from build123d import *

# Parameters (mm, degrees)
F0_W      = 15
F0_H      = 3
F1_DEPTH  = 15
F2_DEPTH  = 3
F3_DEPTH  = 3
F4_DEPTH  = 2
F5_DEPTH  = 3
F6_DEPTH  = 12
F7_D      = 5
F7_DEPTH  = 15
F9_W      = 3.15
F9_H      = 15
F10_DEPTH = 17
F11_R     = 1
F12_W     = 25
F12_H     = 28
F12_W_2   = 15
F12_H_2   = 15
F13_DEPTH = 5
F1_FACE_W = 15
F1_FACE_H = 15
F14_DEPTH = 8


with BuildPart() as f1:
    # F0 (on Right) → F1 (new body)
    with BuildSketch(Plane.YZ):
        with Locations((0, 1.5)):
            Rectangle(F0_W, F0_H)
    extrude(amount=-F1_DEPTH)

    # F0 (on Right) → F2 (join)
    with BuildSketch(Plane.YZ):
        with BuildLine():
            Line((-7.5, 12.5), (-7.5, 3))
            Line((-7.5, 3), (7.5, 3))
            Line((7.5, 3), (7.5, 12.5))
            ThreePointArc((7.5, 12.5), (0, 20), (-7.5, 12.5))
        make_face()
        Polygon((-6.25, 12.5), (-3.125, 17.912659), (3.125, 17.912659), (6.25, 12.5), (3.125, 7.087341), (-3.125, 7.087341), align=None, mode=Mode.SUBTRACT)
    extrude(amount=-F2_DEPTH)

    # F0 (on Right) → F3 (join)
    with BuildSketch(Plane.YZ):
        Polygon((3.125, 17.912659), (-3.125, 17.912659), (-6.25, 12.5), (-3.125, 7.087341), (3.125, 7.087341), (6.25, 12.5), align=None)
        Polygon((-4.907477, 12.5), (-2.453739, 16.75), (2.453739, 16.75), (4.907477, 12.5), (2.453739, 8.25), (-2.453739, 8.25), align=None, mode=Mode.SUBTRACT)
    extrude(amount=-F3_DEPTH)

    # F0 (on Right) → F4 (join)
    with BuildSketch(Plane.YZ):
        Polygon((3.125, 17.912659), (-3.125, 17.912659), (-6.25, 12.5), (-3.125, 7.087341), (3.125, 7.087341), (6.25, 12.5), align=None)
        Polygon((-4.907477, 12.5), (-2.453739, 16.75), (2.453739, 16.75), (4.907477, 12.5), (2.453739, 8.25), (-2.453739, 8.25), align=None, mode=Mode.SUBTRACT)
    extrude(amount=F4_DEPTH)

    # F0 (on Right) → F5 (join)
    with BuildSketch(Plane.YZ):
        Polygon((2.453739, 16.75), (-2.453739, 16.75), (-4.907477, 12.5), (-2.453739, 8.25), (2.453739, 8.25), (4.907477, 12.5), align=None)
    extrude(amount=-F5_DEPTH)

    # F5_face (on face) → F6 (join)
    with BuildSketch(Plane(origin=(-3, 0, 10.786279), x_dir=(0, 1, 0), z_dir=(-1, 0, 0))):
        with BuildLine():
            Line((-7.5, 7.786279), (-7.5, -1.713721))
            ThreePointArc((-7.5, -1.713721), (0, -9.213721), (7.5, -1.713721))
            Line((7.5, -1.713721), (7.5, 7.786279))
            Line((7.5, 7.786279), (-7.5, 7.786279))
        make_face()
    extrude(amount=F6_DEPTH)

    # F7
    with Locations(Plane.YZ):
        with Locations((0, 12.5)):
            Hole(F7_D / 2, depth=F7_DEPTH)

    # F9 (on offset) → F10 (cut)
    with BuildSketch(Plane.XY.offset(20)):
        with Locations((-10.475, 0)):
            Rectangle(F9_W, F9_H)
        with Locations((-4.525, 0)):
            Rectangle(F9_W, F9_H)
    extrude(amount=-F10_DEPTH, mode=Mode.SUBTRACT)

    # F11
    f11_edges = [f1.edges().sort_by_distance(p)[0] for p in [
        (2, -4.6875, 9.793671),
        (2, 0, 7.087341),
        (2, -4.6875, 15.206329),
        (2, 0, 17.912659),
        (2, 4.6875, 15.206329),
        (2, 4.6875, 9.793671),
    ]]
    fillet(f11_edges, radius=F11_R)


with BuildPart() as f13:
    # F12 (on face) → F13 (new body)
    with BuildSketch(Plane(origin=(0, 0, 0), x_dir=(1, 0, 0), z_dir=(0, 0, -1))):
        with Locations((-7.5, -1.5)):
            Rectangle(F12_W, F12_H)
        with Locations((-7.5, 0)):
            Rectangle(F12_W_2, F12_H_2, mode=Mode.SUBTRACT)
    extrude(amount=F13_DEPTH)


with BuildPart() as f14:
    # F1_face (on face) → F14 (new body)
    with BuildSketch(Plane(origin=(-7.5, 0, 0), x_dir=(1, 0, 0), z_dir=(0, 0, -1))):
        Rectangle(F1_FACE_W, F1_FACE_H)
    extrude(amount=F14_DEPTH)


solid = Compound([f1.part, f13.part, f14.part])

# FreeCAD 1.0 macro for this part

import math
import FreeCAD as App
import Part
import Sketcher
Q = App.Units.Quantity


def edges_at(feature, points):
    """Names of the edges that pass closest to the given points."""
    edges = feature.Shape.Edges
    near = lambda p: min(range(len(edges)), key=lambda i: edges[i].distToShape(Part.Vertex(*p))[0])
    return sorted({f"Edge{near(p) + 1}" for p in points})


def add_polygon(sketch, points):
    """Adds a closed chain of lines whose ends are joined by coincident constraints."""
    first, n = sketch.GeometryCount, len(points)
    for a, b in zip(points, points[1:] + points[:1]):
        sketch.addGeometry(Part.LineSegment(App.Vector(*a, 0), App.Vector(*b, 0)), False)
    for i in range(n):
        sketch.addConstraint(Sketcher.Constraint("Coincident", first + i, 2, first + (i + 1) % n, 1))

doc = App.newDocument("Part")
body = doc.addObject("PartDesign::Body", "Body")

# Sketch on YZ plane
sketch1 = body.newObject("Sketcher::SketchObject", "Sketch")
sketch1.AttachmentSupport = (doc.getObject("YZ_Plane"), [""])
sketch1.MapMode = "FlatFace"
add_polygon(sketch1, [(-7.5, 3), (-7.5, 0), (7.5, 0), (7.5, 3)])  # lines 0-3
sketch1.addConstraint(Sketcher.Constraint("Vertical", 0))
sketch1.addConstraint(Sketcher.Constraint("Horizontal", 1))
sketch1.addConstraint(Sketcher.Constraint("Vertical", 2))
sketch1.addConstraint(Sketcher.Constraint("Horizontal", 3))
sketch1.addConstraint(Sketcher.Constraint("Symmetric", 0, 2, 1, 2, -1, 1))
sketch1.addConstraint(Sketcher.Constraint("DistanceX", 1, 1, 1, 2, Q("15 mm")))
sketch1.addConstraint(Sketcher.Constraint("DistanceY", 0, 2, 0, 1, Q("3 mm")))
pad1 = body.newObject("PartDesign::Pad", "Pad")
pad1.Profile = sketch1
pad1.Length = 15
pad1.Reversed = True

# Sketch on YZ plane
sketch2 = body.newObject("Sketcher::SketchObject", "Sketch001")
sketch2.AttachmentSupport = (doc.getObject("YZ_Plane"), [""])
sketch2.MapMode = "FlatFace"
sketch2.addGeometry(Part.LineSegment(App.Vector(-8, 12, 0), App.Vector(-8, 3, 0)), False)  # 0
sketch2.addGeometry(Part.LineSegment(App.Vector(-8, 3, 0), App.Vector(8, 3, 0)), False)  # 1
sketch2.addGeometry(Part.LineSegment(App.Vector(8, 3, 0), App.Vector(8, 12, 0)), False)  # 2
sketch2.addGeometry(Part.ArcOfCircle(Part.Circle(App.Vector(0, 12, 0), App.Vector(0, 0, 1), 8), math.radians(0), math.radians(180)), False)  # 3
add_polygon(sketch2, [(-3, 7), (-6, 12), (-3, 18), (3, 18), (6, 12), (3, 7)])  # lines 4-9
sketch2.addConstraint(Sketcher.Constraint("Coincident", 0, 2, 1, 1))
sketch2.addConstraint(Sketcher.Constraint("Coincident", 1, 2, 2, 1))
sketch2.addConstraint(Sketcher.Constraint("Tangent", 2, 2, 3, 1))
sketch2.addConstraint(Sketcher.Constraint("Tangent", 3, 2, 0, 1))
sketch2.addConstraint(Sketcher.Constraint("Vertical", 0))
sketch2.addConstraint(Sketcher.Constraint("Horizontal", 1))
sketch2.addConstraint(Sketcher.Constraint("Vertical", 2))
sketch2.addConstraint(Sketcher.Constraint("Horizontal", 6))
sketch2.addConstraint(Sketcher.Constraint("Horizontal", 9))
sketch2.addConstraint(Sketcher.Constraint("Symmetric", 4, 2, 7, 2, -2))
sketch2.addConstraint(Sketcher.Constraint("PointOnObject", 3, 3, -2))
sketch2.addConstraint(Sketcher.Constraint("Parallel", 4, 7))
sketch2.addConstraint(Sketcher.Constraint("Parallel", 5, 8))
sketch2.addConstraint(Sketcher.Constraint("Horizontal", 3, 2, 4, 2))
sketch2.addConstraint(Sketcher.Constraint("Vertical", 6, 2, 8, 2))
sketch2.addConstraint(Sketcher.Constraint("Vertical", 5, 2, 9, 2))
sketch2.addConstraint(Sketcher.Constraint("Radius", 3, Q("7.5 mm")))
sketch2.addConstraint(Sketcher.Constraint("Angle", 4, Q("119.999999 deg")))
sketch2.addConstraint(Sketcher.Constraint("DistanceY", 0, 2, 0, 1, Q("9.5 mm")))
sketch2.addConstraint(Sketcher.Constraint("DistanceY", -1, 1, 0, 2, Q("3 mm")))
sketch2.addConstraint(Sketcher.Constraint("DistanceX", 6, 1, 6, 2, Q("6.25 mm")))
sketch2.addConstraint(Sketcher.Constraint("Distance", 4, Q("6.25 mm")))
pad2 = body.newObject("PartDesign::Pad", "Pad001")
pad2.Profile = sketch2
pad2.Length = 3
pad2.Reversed = True

# Sketch on YZ plane
sketch3 = body.newObject("Sketcher::SketchObject", "Sketch002")
sketch3.AttachmentSupport = (doc.getObject("YZ_Plane"), [""])
sketch3.MapMode = "FlatFace"
add_polygon(sketch3, [(3.1, 17.9), (-3.1, 17.9), (-6.2, 12.5), (-3.1, 7.1), (3.1, 7.1), (6.2, 12.5)])  # lines 0-5
add_polygon(sketch3, [(-2.5, 8.2), (-4.9, 12.5), (-2.5, 16.8), (2.5, 16.8), (4.9, 12.5), (2.5, 8.2)])  # lines 6-11
sketch3.addConstraint(Sketcher.Constraint("Horizontal", 0))
sketch3.addConstraint(Sketcher.Constraint("Horizontal", 3))
sketch3.addConstraint(Sketcher.Constraint("Horizontal", 8))
sketch3.addConstraint(Sketcher.Constraint("Horizontal", 11))
sketch3.addConstraint(Sketcher.Constraint("Symmetric", 1, 2, 4, 2, -2))
sketch3.addConstraint(Sketcher.Constraint("Symmetric", 6, 2, 9, 2, -2))
sketch3.addConstraint(Sketcher.Constraint("Parallel", 1, 4))
sketch3.addConstraint(Sketcher.Constraint("Parallel", 2, 5))
sketch3.addConstraint(Sketcher.Constraint("Parallel", 5, 6))
sketch3.addConstraint(Sketcher.Constraint("Parallel", 4, 7))
sketch3.addConstraint(Sketcher.Constraint("Parallel", 6, 9))
sketch3.addConstraint(Sketcher.Constraint("Parallel", 7, 10))
sketch3.addConstraint(Sketcher.Constraint("Horizontal", 4, 2, 6, 2))
sketch3.addConstraint(Sketcher.Constraint("Vertical", 0, 2, 2, 2))
sketch3.addConstraint(Sketcher.Constraint("Vertical", 3, 2, 5, 2))
sketch3.addConstraint(Sketcher.Constraint("Vertical", 8, 2, 10, 2))
sketch3.addConstraint(Sketcher.Constraint("Angle", 1, Q("-119.999999 deg")))
sketch3.addConstraint(Sketcher.Constraint("DistanceX", 0, 2, 0, 1, Q("6.25 mm")))
sketch3.addConstraint(Sketcher.Constraint("DistanceY", -1, 1, 1, 2, Q("12.5 mm")))
sketch3.addConstraint(Sketcher.Constraint("DistanceX", 1, 2, 4, 2, Q("12.5 mm")))
sketch3.addConstraint(Sketcher.Constraint("DistanceY", 10, 2, 8, 2, Q("8.5 mm")))
sketch3.addConstraint(Sketcher.Constraint("DistanceX", 8, 1, 8, 2, Q("4.907478 mm")))
pad3 = body.newObject("PartDesign::Pad", "Pad002")
pad3.Profile = sketch3
pad3.Length = 3
pad3.Reversed = True

# Sketch on YZ plane
sketch4 = body.newObject("Sketcher::SketchObject", "Sketch003")
sketch4.AttachmentSupport = (doc.getObject("YZ_Plane"), [""])
sketch4.MapMode = "FlatFace"
add_polygon(sketch4, [(3.1, 17.9), (-3.1, 17.9), (-6.2, 12.5), (-3.1, 7.1), (3.1, 7.1), (6.2, 12.5)])  # lines 0-5
add_polygon(sketch4, [(-2.5, 8.2), (-4.9, 12.5), (-2.5, 16.8), (2.5, 16.8), (4.9, 12.5), (2.5, 8.2)])  # lines 6-11
sketch4.addConstraint(Sketcher.Constraint("Horizontal", 0))
sketch4.addConstraint(Sketcher.Constraint("Horizontal", 3))
sketch4.addConstraint(Sketcher.Constraint("Horizontal", 8))
sketch4.addConstraint(Sketcher.Constraint("Horizontal", 11))
sketch4.addConstraint(Sketcher.Constraint("Symmetric", 1, 2, 4, 2, -2))
sketch4.addConstraint(Sketcher.Constraint("Symmetric", 6, 2, 9, 2, -2))
sketch4.addConstraint(Sketcher.Constraint("Parallel", 1, 4))
sketch4.addConstraint(Sketcher.Constraint("Parallel", 2, 5))
sketch4.addConstraint(Sketcher.Constraint("Parallel", 5, 6))
sketch4.addConstraint(Sketcher.Constraint("Parallel", 4, 7))
sketch4.addConstraint(Sketcher.Constraint("Parallel", 6, 9))
sketch4.addConstraint(Sketcher.Constraint("Parallel", 7, 10))
sketch4.addConstraint(Sketcher.Constraint("Horizontal", 4, 2, 6, 2))
sketch4.addConstraint(Sketcher.Constraint("Vertical", 0, 2, 2, 2))
sketch4.addConstraint(Sketcher.Constraint("Vertical", 3, 2, 5, 2))
sketch4.addConstraint(Sketcher.Constraint("Vertical", 8, 2, 10, 2))
sketch4.addConstraint(Sketcher.Constraint("Angle", 1, Q("-119.999999 deg")))
sketch4.addConstraint(Sketcher.Constraint("DistanceX", 0, 2, 0, 1, Q("6.25 mm")))
sketch4.addConstraint(Sketcher.Constraint("DistanceY", -1, 1, 1, 2, Q("12.5 mm")))
sketch4.addConstraint(Sketcher.Constraint("DistanceX", 1, 2, 4, 2, Q("12.5 mm")))
sketch4.addConstraint(Sketcher.Constraint("DistanceY", 10, 2, 8, 2, Q("8.5 mm")))
sketch4.addConstraint(Sketcher.Constraint("DistanceX", 8, 1, 8, 2, Q("4.907478 mm")))
pad4 = body.newObject("PartDesign::Pad", "Pad003")
pad4.Profile = sketch4
pad4.Length = 2

# Sketch on YZ plane
sketch5 = body.newObject("Sketcher::SketchObject", "Sketch004")
sketch5.AttachmentSupport = (doc.getObject("YZ_Plane"), [""])
sketch5.MapMode = "FlatFace"
add_polygon(sketch5, [(2.5, 16.8), (-2.5, 16.8), (-4.9, 12.5), (-2.5, 8.2), (2.5, 8.2), (4.9, 12.5)])  # lines 0-5
sketch5.addConstraint(Sketcher.Constraint("Horizontal", 0))
sketch5.addConstraint(Sketcher.Constraint("Horizontal", 3))
sketch5.addConstraint(Sketcher.Constraint("Symmetric", 1, 2, 4, 2, -2))
sketch5.addConstraint(Sketcher.Constraint("Parallel", 1, 4))
sketch5.addConstraint(Sketcher.Constraint("Parallel", 2, 5))
sketch5.addConstraint(Sketcher.Constraint("Vertical", 0, 2, 2, 2))
sketch5.addConstraint(Sketcher.Constraint("Vertical", 3, 2, 5, 2))
sketch5.addConstraint(Sketcher.Constraint("Angle", 1, Q("-119.999993 deg")))
sketch5.addConstraint(Sketcher.Constraint("DistanceY", -1, 1, 1, 2, Q("12.5 mm")))
sketch5.addConstraint(Sketcher.Constraint("DistanceY", 2, 2, 0, 2, Q("8.5 mm")))
sketch5.addConstraint(Sketcher.Constraint("DistanceX", 0, 2, 0, 1, Q("4.907478 mm")))
pad5 = body.newObject("PartDesign::Pad", "Pad004")
pad5.Profile = sketch5
pad5.Length = 3
pad5.Reversed = True

# Sketch on YZ plane
sketch6 = body.newObject("Sketcher::SketchObject", "Sketch005")
sketch6.AttachmentSupport = (doc.getObject("YZ_Plane"), [""])
sketch6.MapMode = "FlatFace"
sketch6.AttachmentOffset = App.Placement(App.Vector(0, 0, -3), App.Rotation())
sketch6.addGeometry(Part.LineSegment(App.Vector(-8, 3, 0), App.Vector(-8, 12, 0)), False)
sketch6.addGeometry(Part.ArcOfCircle(Part.Circle(App.Vector(0, 12, 0), App.Vector(0, 0, 1), 8), math.radians(0), math.radians(180)), False)
sketch6.addGeometry(Part.LineSegment(App.Vector(8, 12, 0), App.Vector(8, 3, 0)), False)
sketch6.addGeometry(Part.LineSegment(App.Vector(8, 3, 0), App.Vector(-8, 3, 0)), False)
sketch6.addConstraint(Sketcher.Constraint("Tangent", 0, 2, 1, 2))
sketch6.addConstraint(Sketcher.Constraint("Tangent", 1, 1, 2, 1))
sketch6.addConstraint(Sketcher.Constraint("Coincident", 2, 2, 3, 1))
sketch6.addConstraint(Sketcher.Constraint("Coincident", 3, 2, 0, 1))
sketch6.addConstraint(Sketcher.Constraint("Vertical", 0))
sketch6.addConstraint(Sketcher.Constraint("Vertical", 2))
sketch6.addConstraint(Sketcher.Constraint("Horizontal", 3))
sketch6.addConstraint(Sketcher.Constraint("PointOnObject", 1, 3, -2))
sketch6.addConstraint(Sketcher.Constraint("Radius", 1, Q("7.5 mm")))
sketch6.addConstraint(Sketcher.Constraint("DistanceY", 0, 1, 0, 2, Q("9.5 mm")))
sketch6.addConstraint(Sketcher.Constraint("DistanceY", -1, 1, 2, 2, Q("3 mm")))
pad6 = body.newObject("PartDesign::Pad", "Pad005")
pad6.Profile = sketch6
pad6.Length = 12
pad6.Reversed = True

# Sketch on YZ plane
sketch7 = body.newObject("Sketcher::SketchObject", "Sketch006")
sketch7.AttachmentSupport = (doc.getObject("YZ_Plane"), [""])
sketch7.MapMode = "FlatFace"
sketch7.addGeometry(Part.Circle(App.Vector(0, 12.5, 0), App.Vector(0, 0, 1), 2.5), False)
sketch7.addConstraint(Sketcher.Constraint("PointOnObject", 0, 3, -2))
sketch7.addConstraint(Sketcher.Constraint("Diameter", 0, Q("5 mm")))
sketch7.addConstraint(Sketcher.Constraint("DistanceY", -1, 1, 0, 3, Q("12.5 mm")))
doc.recompute()
hole = body.newObject("PartDesign::Hole", "Hole")
hole.Profile = sketch7
hole.ThreadType = "None"
hole.Diameter = 5
hole.DepthType = "Dimension"
hole.Depth = 15
hole.DrillPoint = "Flat"

# Sketch on XY plane
sketch8 = body.newObject("Sketcher::SketchObject", "Sketch007")
sketch8.AttachmentSupport = (doc.getObject("XY_Plane"), [""])
sketch8.MapMode = "FlatFace"
sketch8.AttachmentOffset = App.Placement(App.Vector(0, 0, 20), App.Rotation())
add_polygon(sketch8, [(-12.1, 7.5), (-12.1, -7.5), (-8.9, -7.5), (-8.9, 7.5)])  # lines 0-3
add_polygon(sketch8, [(-6.1, 7.5), (-6.1, -7.5), (-3, -7.5), (-3, 7.5)])  # lines 4-7
sketch8.addConstraint(Sketcher.Constraint("Vertical", 0))
sketch8.addConstraint(Sketcher.Constraint("Horizontal", 1))
sketch8.addConstraint(Sketcher.Constraint("Vertical", 2))
sketch8.addConstraint(Sketcher.Constraint("Horizontal", 3))
sketch8.addConstraint(Sketcher.Constraint("Vertical", 4))
sketch8.addConstraint(Sketcher.Constraint("Horizontal", 5))
sketch8.addConstraint(Sketcher.Constraint("Vertical", 6))
sketch8.addConstraint(Sketcher.Constraint("Horizontal", 7))
sketch8.addConstraint(Sketcher.Constraint("Horizontal", 1, 2, 4, 2))
sketch8.addConstraint(Sketcher.Constraint("Horizontal", 3, 2, 6, 2))
sketch8.addConstraint(Sketcher.Constraint("Equal", 3, 5))
sketch8.addConstraint(Sketcher.Constraint("DistanceY", 0, 2, 0, 1, Q("15 mm")))
sketch8.addConstraint(Sketcher.Constraint("DistanceX", 1, 1, 1, 2, Q("3.15 mm")))
sketch8.addConstraint(Sketcher.Constraint("DistanceY", 0, 2, -1, 1, Q("7.5 mm")))
sketch8.addConstraint(Sketcher.Constraint("DistanceX", 1, 2, -1, 1, Q("8.9 mm")))
sketch8.addConstraint(Sketcher.Constraint("DistanceX", 4, 2, -1, 1, Q("6.1 mm")))
pocket1 = body.newObject("PartDesign::Pocket", "Pocket")
pocket1.Profile = sketch8
pocket1.Length = 17
doc.recompute()

fillet = body.newObject("PartDesign::Fillet", "Fillet")
fillet.Base = (pocket1, edges_at(pocket1, [
    (2, -4.688, 9.794),
    (2, 0, 7.087),
    (2, -4.688, 15.206),
    (2, 0, 17.913),
    (2, 4.688, 15.206),
    (2, 4.688, 9.794),
]))
fillet.Radius = 1
body2 = doc.addObject("PartDesign::Body", "Body001")

# Sketch on XY plane
sketch9 = body2.newObject("Sketcher::SketchObject", "Sketch008")
sketch9.AttachmentSupport = (doc.getObject("XY_Plane001"), [""])
sketch9.MapMode = "FlatFace"
add_polygon(sketch9, [(-20, -12), (-20, 16), (5, 16), (5, -12)])  # lines 0-3
add_polygon(sketch9, [(0, 8), (-15, 8), (-15, -8), (0, -8)])  # lines 4-7
sketch9.addConstraint(Sketcher.Constraint("Vertical", 0))
sketch9.addConstraint(Sketcher.Constraint("Horizontal", 1))
sketch9.addConstraint(Sketcher.Constraint("Vertical", 2))
sketch9.addConstraint(Sketcher.Constraint("Horizontal", 3))
sketch9.addConstraint(Sketcher.Constraint("Horizontal", 4))
sketch9.addConstraint(Sketcher.Constraint("Vertical", 5))
sketch9.addConstraint(Sketcher.Constraint("Horizontal", 6))
sketch9.addConstraint(Sketcher.Constraint("Vertical", 7))
sketch9.addConstraint(Sketcher.Constraint("Symmetric", 6, 2, 7, 2, -1, 1))
sketch9.addConstraint(Sketcher.Constraint("Equal", 6, 5))
sketch9.addConstraint(Sketcher.Constraint("DistanceX", 1, 1, 1, 2, Q("25 mm")))
sketch9.addConstraint(Sketcher.Constraint("DistanceX", 4, 2, 4, 1, Q("15 mm")))
sketch9.addConstraint(Sketcher.Constraint("DistanceY", 0, 1, 0, 2, Q("28 mm")))
sketch9.addConstraint(Sketcher.Constraint("DistanceX", 0, 2, -1, 1, Q("20 mm")))
sketch9.addConstraint(Sketcher.Constraint("DistanceY", 4, 2, 0, 2, Q("8 mm")))
pad7 = body2.newObject("PartDesign::Pad", "Pad006")
pad7.Profile = sketch9
pad7.Length = 5
pad7.Reversed = True
body3 = doc.addObject("PartDesign::Body", "Body002")

# Sketch on XY plane
sketch10 = body3.newObject("Sketcher::SketchObject", "Sketch009")
sketch10.AttachmentSupport = (doc.getObject("XY_Plane002"), [""])
sketch10.MapMode = "FlatFace"
add_polygon(sketch10, [(-15, -8), (-15, 8), (0, 8), (0, -8)])  # lines 0-3
sketch10.addConstraint(Sketcher.Constraint("Vertical", 0))
sketch10.addConstraint(Sketcher.Constraint("Horizontal", 1))
sketch10.addConstraint(Sketcher.Constraint("Vertical", 2))
sketch10.addConstraint(Sketcher.Constraint("Horizontal", 3))
sketch10.addConstraint(Sketcher.Constraint("Symmetric", 1, 2, 2, 2, -1, 1))
sketch10.addConstraint(Sketcher.Constraint("Equal", 3, 0))
sketch10.addConstraint(Sketcher.Constraint("DistanceX", 1, 1, 1, 2, Q("15 mm")))
pad8 = body3.newObject("PartDesign::Pad", "Pad007")
pad8.Profile = sketch10
pad8.Length = 8
pad8.Reversed = True

doc.recompute()
